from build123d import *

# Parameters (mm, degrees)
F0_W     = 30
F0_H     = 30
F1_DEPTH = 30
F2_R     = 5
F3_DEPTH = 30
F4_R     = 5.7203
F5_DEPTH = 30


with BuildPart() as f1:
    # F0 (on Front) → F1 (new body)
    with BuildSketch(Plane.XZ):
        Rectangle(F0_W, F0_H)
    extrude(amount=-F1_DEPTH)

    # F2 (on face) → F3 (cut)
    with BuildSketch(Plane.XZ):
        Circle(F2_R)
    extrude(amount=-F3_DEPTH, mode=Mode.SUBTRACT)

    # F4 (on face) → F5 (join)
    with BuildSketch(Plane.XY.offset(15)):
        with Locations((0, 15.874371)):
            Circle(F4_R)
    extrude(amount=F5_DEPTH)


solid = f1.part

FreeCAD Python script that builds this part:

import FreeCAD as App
import Part
import Sketcher
from FreeCAD import Vector
Q = App.Units.Quantity

doc = App.newDocument("Part")
body = doc.addObject("PartDesign::Body", "Body")

sketch1 = body.newObject("Sketcher::SketchObject", "Sketch")
sketch1.AttachmentSupport = (doc.getObject("XZ_Plane"), [""])
sketch1.MapMode = "FlatFace"
sketch1.addGeometry([
    Part.LineSegment(Vector(-15, 15, 0), Vector(-15, -15, 0)),
    Part.LineSegment(Vector(-15, -15, 0), Vector(15, -15, 0)),
    Part.LineSegment(Vector(15, -15, 0), Vector(15, 15, 0)),
    Part.LineSegment(Vector(15, 15, 0), Vector(-15, 15, 0)),
], False)
sketch1.addConstraint([
    Sketcher.Constraint("Coincident", 0, 2, 1, 1),
    Sketcher.Constraint("Coincident", 1, 2, 2, 1),
    Sketcher.Constraint("Coincident", 2, 2, 3, 1),
    Sketcher.Constraint("Coincident", 3, 2, 0, 1),
    Sketcher.Constraint("Vertical", 0),
    Sketcher.Constraint("Horizontal", 1),
    Sketcher.Constraint("Vertical", 2),
    Sketcher.Constraint("Horizontal", 3),
    Sketcher.Constraint("Symmetric", 0, 2, 2, 2, -1, 1),
    Sketcher.Constraint("Equal", 3, 0),
    Sketcher.Constraint("DistanceX", 1, 1, 1, 2, Q("30 mm")),
])
pad1 = body.newObject("PartDesign::Pad", "Pad")
pad1.Profile = sketch1
pad1.Length = 30
pad1.Reversed = True

sketch2 = body.newObject("Sketcher::SketchObject", "Sketch001")
sketch2.AttachmentSupport = (doc.getObject("XZ_Plane"), [""])
sketch2.MapMode = "FlatFace"
sketch2.addGeometry(Part.Circle(Vector(0, 0, 0), Vector(0, 0, 1), 5), False)
sketch2.addConstraint([
    Sketcher.Constraint("Coincident", 0, 3, -1, 1),
    Sketcher.Constraint("Diameter", 0, Q("10 mm")),
])
pocket1 = body.newObject("PartDesign::Pocket", "Pocket")
pocket1.Profile = sketch2
pocket1.Length = 30

sketch3 = body.newObject("Sketcher::SketchObject", "Sketch002")
sketch3.AttachmentSupport = (doc.getObject("XY_Plane"), [""])
sketch3.MapMode = "FlatFace"
sketch3.AttachmentOffset = App.Placement(Vector(0, 0, 15), App.Rotation())
sketch3.addGeometry(Part.Circle(Vector(0, 16, 0), Vector(0, 0, 1), 6), False)
sketch3.addConstraint([
    Sketcher.Constraint("PointOnObject", 0, 3, -2),
    Sketcher.Constraint("Diameter", 0, Q("11.4406 mm")),
    Sketcher.Constraint("DistanceY", -1, 1, 0, 3, Q("15.874371 mm")),
])
pad2 = body.newObject("PartDesign::Pad", "Pad001")
pad2.Profile = sketch3
pad2.Length = 30

doc.recompute()
